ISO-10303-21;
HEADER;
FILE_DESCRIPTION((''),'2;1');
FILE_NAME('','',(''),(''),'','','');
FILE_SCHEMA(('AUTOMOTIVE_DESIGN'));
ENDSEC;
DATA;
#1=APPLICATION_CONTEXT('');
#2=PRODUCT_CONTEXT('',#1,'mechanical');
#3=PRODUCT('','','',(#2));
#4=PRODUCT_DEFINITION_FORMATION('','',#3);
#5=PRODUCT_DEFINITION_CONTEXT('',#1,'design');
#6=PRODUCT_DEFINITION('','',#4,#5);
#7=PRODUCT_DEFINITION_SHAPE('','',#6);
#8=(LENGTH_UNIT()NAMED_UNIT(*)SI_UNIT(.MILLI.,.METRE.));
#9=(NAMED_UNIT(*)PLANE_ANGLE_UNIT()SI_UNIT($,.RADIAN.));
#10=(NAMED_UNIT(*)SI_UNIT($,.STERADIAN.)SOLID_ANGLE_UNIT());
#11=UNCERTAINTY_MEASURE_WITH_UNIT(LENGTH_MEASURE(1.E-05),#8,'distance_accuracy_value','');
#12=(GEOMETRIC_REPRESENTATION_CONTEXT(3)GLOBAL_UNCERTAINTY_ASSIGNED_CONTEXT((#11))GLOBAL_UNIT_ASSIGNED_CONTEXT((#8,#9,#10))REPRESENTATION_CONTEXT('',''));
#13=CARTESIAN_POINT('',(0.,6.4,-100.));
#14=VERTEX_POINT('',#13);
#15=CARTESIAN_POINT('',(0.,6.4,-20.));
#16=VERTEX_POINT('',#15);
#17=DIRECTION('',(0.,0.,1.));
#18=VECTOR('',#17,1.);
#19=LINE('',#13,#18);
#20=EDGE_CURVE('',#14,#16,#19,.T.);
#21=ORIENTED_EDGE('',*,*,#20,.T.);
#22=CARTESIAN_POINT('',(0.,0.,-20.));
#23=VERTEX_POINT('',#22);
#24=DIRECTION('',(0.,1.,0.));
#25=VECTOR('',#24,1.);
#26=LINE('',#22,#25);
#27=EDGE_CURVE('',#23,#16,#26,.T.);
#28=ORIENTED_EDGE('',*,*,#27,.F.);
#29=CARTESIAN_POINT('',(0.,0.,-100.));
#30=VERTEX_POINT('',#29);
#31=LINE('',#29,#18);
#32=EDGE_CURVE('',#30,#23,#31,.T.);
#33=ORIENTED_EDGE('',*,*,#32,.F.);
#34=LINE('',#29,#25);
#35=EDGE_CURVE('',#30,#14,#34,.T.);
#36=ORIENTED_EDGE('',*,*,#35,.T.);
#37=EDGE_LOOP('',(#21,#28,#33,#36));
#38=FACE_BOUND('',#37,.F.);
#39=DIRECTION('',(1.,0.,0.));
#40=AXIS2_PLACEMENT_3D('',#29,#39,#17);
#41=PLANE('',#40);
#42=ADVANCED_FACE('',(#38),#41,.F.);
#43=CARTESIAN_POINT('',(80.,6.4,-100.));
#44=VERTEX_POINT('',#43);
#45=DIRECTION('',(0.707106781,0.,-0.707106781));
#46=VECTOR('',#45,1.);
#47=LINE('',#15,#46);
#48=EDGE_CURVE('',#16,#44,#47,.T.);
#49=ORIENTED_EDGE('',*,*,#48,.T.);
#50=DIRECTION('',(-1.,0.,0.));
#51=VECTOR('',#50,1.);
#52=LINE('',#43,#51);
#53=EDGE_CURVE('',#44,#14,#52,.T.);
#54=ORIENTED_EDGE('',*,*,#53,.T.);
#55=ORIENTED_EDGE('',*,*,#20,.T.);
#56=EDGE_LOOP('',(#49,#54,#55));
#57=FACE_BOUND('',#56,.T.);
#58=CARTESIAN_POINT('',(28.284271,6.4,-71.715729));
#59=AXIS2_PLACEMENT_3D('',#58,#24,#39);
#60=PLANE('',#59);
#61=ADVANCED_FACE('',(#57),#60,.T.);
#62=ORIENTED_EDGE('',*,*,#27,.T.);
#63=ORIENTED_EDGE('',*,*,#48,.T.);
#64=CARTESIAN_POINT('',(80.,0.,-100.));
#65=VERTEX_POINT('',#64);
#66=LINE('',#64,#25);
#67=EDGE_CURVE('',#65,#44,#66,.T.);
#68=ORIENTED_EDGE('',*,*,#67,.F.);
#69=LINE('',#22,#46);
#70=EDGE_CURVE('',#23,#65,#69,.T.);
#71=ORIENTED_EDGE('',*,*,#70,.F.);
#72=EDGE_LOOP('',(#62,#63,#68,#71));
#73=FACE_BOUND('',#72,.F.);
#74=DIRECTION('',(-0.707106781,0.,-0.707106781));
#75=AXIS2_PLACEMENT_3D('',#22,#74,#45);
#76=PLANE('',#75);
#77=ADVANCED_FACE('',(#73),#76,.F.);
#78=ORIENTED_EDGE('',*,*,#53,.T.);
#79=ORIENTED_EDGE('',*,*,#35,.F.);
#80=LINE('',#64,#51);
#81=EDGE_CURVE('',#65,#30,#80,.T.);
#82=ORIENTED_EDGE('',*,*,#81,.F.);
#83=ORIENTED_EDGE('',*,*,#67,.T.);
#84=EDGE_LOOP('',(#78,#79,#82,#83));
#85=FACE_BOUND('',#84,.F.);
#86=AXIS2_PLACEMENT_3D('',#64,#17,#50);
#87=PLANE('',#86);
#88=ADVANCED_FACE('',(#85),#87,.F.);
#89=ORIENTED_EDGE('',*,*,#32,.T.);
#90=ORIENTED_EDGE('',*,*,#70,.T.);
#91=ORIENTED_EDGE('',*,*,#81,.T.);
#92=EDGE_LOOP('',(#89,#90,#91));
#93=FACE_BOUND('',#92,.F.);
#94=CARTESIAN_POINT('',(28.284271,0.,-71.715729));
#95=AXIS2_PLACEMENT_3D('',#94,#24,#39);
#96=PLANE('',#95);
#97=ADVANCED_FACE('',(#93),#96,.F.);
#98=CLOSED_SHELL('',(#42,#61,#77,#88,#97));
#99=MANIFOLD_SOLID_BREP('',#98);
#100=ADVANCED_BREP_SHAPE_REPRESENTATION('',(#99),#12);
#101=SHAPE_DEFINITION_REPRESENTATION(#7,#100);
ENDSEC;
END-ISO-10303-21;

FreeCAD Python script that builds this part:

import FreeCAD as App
import Part
import Sketcher

V = App.Vector
Q = App.Units.Quantity


def add_polygon(sketch, points):
    """Adds a closed chain of lines whose ends are joined by coincident constraints."""
    first, n = sketch.GeometryCount, len(points)
    for a, b in zip(points, points[1:] + points[:1]):
        sketch.addGeometry(Part.LineSegment(App.Vector(*a, 0), App.Vector(*b, 0)), False)
    for i in range(n):
        sketch.addConstraint(Sketcher.Constraint("Coincident", first + i, 2, first + (i + 1) % n, 1))

doc = App.newDocument("Part")
body = doc.addObject("PartDesign::Body", "Body")

sketch1 = doc.addObject("Sketcher::SketchObject", "Sketch")
body.addObject(sketch1)
sketch1.AttachmentSupport = (doc.XZ_Plane, [""])
sketch1.MapMode = "FlatFace"
add_polygon(sketch1, [(0, -100), (0, -20), (80, -100)])
sketch1.addConstraint(Sketcher.Constraint("Vertical", 0))
sketch1.addConstraint(Sketcher.Constraint("Horizontal", 2))
sketch1.addConstraint(Sketcher.Constraint("PointOnObject", 0, 2, -2))
sketch1.addConstraint(Sketcher.Constraint("Equal", 2, 0))
sketch1.addConstraint(Sketcher.Constraint("DistanceX", 2, 2, 2, 1, Q("80 mm")))
sketch1.addConstraint(Sketcher.Constraint("DistanceY", 0, 2, -1, 1, Q("20 mm")))
pad1 = doc.addObject("PartDesign::Pad", "Pad")
body.addObject(pad1)
pad1.Profile = sketch1
pad1.Length = 6.4
pad1.Reversed = True

doc.recompute()
